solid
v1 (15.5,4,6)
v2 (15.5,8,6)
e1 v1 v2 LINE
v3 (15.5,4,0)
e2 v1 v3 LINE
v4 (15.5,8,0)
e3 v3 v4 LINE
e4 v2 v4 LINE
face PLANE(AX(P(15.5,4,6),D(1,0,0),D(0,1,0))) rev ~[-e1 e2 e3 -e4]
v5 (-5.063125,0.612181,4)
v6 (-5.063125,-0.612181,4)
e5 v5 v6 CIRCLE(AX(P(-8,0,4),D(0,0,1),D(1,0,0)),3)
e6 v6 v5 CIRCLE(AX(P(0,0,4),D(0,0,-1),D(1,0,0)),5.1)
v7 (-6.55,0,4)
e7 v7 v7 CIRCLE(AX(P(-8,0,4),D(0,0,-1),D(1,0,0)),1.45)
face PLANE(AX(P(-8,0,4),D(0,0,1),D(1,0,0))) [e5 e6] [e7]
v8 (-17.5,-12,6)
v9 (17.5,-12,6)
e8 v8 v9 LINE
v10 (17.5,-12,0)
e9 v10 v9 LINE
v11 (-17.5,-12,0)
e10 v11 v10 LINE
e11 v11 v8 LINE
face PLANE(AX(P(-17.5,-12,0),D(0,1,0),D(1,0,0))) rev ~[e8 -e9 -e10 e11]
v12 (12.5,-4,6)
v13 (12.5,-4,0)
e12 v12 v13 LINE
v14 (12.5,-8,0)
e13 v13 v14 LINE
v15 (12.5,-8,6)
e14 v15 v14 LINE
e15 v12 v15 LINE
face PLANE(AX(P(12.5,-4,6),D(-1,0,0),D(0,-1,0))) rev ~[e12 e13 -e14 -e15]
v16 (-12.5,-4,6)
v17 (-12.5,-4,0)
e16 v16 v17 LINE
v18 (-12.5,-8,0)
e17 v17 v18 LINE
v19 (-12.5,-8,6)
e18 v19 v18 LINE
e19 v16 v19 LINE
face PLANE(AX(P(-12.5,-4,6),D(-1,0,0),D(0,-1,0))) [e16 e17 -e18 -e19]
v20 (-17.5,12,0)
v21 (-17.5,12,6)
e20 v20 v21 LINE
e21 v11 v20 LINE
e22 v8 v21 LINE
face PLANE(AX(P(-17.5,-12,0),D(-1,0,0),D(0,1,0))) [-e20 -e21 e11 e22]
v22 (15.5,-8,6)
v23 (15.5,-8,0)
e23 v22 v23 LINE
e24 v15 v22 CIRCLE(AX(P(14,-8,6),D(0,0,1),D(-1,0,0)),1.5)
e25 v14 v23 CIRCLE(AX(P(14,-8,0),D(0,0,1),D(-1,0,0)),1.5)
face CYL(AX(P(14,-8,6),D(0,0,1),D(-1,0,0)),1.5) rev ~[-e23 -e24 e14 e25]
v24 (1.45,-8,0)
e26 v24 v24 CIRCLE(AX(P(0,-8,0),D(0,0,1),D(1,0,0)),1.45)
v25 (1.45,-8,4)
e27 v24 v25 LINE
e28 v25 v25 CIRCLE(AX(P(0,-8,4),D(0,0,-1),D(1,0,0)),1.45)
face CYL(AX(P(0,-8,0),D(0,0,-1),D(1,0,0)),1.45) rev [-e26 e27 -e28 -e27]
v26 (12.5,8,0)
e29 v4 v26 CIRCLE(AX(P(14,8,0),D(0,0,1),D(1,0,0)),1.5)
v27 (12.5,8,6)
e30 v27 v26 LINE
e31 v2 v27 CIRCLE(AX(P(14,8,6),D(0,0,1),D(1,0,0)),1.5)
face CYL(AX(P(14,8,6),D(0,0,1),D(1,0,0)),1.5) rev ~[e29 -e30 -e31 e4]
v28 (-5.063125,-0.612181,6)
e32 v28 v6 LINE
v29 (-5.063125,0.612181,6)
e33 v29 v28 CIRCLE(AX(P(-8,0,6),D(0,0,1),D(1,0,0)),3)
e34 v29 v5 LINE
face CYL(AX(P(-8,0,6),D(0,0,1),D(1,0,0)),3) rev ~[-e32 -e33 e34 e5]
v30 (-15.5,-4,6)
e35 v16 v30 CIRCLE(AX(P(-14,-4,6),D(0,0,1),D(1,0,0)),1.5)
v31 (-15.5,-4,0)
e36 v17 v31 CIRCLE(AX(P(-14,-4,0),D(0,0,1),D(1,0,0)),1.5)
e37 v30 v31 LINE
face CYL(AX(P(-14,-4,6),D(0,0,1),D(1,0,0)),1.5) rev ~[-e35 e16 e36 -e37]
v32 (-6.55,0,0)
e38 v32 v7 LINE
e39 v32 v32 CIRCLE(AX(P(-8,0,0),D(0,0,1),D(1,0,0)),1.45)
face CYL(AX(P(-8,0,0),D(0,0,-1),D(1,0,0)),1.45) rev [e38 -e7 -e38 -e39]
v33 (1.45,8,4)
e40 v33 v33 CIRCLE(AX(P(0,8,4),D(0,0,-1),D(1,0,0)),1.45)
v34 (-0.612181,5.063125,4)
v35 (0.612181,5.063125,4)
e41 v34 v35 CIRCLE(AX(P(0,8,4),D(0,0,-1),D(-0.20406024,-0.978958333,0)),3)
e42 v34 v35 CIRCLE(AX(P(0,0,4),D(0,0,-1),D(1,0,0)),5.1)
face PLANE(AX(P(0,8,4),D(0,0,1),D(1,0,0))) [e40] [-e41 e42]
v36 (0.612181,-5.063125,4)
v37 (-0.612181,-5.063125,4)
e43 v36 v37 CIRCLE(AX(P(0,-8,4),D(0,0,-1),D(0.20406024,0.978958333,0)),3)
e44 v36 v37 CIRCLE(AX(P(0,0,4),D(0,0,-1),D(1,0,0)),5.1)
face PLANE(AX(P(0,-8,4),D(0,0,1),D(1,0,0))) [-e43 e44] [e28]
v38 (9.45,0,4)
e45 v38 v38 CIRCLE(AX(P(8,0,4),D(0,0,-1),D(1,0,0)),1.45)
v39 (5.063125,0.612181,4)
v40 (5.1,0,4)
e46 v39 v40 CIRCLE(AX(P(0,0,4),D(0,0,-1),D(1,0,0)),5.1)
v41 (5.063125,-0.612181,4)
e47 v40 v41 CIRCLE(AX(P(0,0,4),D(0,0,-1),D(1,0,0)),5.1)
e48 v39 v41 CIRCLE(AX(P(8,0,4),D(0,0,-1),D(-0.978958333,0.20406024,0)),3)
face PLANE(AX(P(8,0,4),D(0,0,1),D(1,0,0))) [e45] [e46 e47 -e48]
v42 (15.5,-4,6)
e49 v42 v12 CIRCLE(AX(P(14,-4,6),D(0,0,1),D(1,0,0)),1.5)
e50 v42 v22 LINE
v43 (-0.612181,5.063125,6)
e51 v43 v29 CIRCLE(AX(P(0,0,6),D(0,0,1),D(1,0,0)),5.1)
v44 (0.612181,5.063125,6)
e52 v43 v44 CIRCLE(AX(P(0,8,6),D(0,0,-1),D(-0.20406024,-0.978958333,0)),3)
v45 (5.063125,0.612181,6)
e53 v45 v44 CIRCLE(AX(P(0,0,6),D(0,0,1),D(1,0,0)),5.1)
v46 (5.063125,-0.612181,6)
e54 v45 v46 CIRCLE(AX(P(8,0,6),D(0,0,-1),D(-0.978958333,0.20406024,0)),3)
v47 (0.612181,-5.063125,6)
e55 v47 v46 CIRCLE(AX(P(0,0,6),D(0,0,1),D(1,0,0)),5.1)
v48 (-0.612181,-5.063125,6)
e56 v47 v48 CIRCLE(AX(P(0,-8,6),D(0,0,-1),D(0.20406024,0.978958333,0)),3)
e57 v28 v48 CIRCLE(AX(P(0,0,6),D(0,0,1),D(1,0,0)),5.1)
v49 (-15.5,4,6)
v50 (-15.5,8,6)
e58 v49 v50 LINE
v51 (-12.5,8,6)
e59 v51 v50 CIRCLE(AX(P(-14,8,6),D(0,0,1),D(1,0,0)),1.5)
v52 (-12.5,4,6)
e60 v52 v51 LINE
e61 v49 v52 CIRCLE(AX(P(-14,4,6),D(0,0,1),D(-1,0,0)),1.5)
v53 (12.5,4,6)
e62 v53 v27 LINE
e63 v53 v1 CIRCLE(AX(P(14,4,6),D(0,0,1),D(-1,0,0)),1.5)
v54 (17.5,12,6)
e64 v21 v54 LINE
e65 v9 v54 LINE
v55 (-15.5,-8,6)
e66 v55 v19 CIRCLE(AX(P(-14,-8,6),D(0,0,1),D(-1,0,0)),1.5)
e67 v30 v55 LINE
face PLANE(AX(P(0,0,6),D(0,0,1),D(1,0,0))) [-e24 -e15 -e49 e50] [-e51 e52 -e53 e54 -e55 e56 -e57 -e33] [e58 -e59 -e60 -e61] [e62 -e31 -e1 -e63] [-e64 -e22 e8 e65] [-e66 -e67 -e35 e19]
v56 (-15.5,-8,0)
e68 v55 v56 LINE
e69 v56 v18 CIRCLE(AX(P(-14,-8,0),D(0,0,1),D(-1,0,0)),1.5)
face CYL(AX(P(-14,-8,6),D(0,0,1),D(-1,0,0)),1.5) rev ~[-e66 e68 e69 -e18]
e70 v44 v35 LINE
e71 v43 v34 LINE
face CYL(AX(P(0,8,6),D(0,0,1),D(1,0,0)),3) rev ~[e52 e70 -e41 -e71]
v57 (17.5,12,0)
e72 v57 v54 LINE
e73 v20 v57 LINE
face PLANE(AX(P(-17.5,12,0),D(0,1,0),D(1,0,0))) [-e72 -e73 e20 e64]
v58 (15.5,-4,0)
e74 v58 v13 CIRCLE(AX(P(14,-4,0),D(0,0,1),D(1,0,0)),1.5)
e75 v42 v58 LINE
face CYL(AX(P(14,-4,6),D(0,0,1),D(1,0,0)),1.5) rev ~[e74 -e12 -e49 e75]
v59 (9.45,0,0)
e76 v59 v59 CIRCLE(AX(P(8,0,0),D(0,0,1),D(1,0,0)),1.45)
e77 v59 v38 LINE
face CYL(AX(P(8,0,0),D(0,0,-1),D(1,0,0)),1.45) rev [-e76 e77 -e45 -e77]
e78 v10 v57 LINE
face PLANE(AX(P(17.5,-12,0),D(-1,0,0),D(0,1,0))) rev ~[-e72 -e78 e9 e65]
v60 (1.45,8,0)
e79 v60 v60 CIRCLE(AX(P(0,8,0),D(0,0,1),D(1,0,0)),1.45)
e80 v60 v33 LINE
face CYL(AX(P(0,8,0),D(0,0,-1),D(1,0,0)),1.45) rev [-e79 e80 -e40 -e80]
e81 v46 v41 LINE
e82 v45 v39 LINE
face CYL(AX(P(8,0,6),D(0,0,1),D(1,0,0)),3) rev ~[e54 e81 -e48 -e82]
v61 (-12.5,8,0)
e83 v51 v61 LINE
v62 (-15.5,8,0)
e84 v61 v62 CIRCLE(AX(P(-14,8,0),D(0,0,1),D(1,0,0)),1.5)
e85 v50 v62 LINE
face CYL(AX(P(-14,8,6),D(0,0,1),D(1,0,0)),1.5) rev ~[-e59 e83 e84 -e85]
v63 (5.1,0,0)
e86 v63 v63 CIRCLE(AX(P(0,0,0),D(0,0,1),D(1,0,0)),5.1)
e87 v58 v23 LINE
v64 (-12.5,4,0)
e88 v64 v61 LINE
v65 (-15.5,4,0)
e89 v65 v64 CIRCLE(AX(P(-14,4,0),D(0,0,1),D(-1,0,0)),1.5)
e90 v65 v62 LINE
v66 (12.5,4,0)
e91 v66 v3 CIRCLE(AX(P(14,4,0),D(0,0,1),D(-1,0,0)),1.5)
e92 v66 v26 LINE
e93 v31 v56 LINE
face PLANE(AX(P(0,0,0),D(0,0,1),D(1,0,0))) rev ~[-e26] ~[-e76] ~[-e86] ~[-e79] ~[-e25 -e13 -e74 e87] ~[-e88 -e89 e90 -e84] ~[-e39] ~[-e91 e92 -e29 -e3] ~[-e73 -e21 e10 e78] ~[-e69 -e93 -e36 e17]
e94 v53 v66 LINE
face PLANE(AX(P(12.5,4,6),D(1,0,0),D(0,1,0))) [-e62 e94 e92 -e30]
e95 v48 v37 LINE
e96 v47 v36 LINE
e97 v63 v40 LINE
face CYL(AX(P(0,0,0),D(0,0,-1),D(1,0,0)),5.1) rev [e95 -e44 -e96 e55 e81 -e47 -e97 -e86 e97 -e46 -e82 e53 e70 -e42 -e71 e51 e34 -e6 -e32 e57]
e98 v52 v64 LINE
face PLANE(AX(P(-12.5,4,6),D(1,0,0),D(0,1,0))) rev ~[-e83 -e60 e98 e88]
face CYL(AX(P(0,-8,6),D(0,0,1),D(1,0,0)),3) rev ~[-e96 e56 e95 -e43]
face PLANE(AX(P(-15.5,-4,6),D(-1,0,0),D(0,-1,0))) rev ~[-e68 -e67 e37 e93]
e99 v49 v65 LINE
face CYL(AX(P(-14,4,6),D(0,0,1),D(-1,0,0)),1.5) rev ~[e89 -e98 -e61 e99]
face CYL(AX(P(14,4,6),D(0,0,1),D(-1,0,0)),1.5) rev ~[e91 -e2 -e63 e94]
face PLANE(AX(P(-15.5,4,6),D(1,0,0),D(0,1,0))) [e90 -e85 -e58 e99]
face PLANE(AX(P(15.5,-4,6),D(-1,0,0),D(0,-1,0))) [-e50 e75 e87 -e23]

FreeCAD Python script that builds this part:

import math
import FreeCAD as App
import Part
import Sketcher

V = App.Vector


def add_polygon(sketch, points):
    """Adds a closed chain of lines whose ends are joined by coincident constraints."""
    first, n = sketch.GeometryCount, len(points)
    for a, b in zip(points, points[1:] + points[:1]):
        sketch.addGeometry(Part.LineSegment(App.Vector(*a, 0), App.Vector(*b, 0)), False)
    for i in range(n):
        sketch.addConstraint(Sketcher.Constraint("Coincident", first + i, 2, first + (i + 1) % n, 1))

doc = App.newDocument("Part")
params = doc.addObject("Spreadsheet::Sheet", "Params")
for row, (alias, value) in enumerate([
    ("sketch1_diameter", "2.9 mm"),
    ("sketch1_diameter2", "10.2 mm"),
    ("sketch1_width", "35 mm"),
    ("sketch1_height", "24 mm"),
    ("pad1_length", "6 mm"),
    ("sketch2_diameter", "6 mm"),
    ("pocket1_length", "2 mm"),
    ("sketch3_radius", "1.5 mm"),
    ("sketch3_height", "4 mm"),
], start=1):
    params.set(f"A{row}", alias)
    params.set(f"B{row}", "=" + value)
    params.setAlias(f"B{row}", alias)

body = doc.addObject("PartDesign::Body", "Body")

sketch1 = body.newObject("Sketcher::SketchObject", "Sketch")
sketch1.AttachmentSupport = (doc.getObject("XY_Plane"), [""])
sketch1.MapMode = "FlatFace"
add_polygon(sketch1, [(-17.5, 12), (-17.5, -12), (17.5, -12), (17.5, 12)])
sketch1.addGeometry(Part.Circle(V(0, -8, 0), V(0, 0, 1), 1.4), False)
sketch1.addGeometry(Part.Circle(V(-8, 0, 0), V(0, 0, 1), 1.4), False)
sketch1.addGeometry(Part.Circle(V(0, 0, 0), V(0, 0, 1), 5.1), False)
sketch1.addGeometry(Part.Circle(V(8, 0, 0), V(0, 0, 1), 1.4), False)
sketch1.addGeometry(Part.Circle(V(0, 8, 0), V(0, 0, 1), 1.4), False)
sketch1.addConstraint([
    Sketcher.Constraint("Vertical", 0),
    Sketcher.Constraint("Horizontal", 1),
    Sketcher.Constraint("Vertical", 2),
    Sketcher.Constraint("Horizontal", 3),
    Sketcher.Constraint("Coincident", 6, 3, -1, 1),
    Sketcher.Constraint("Equal", 4, 5),
    Sketcher.Constraint("Equal", 5, 7),
    Sketcher.Constraint("Equal", 7, 8),
    Sketcher.Constraint("Symmetric", 5, 3, 7, 3, -1, 1),
    Sketcher.Constraint("Symmetric", 4, 3, 8, 3, -1, 1),
    Sketcher.Constraint("Symmetric", 0, 2, 2, 2, -1, 1),
    Sketcher.Constraint("PointOnObject", 4, 3, -2),
    Sketcher.Constraint("PointOnObject", 5, 3, -1),
    Sketcher.Constraint("Diameter", 4, 2.9),
    Sketcher.Constraint("Diameter", 6, 10.2),
    Sketcher.Constraint("DistanceX", 1, 1, 1, 2, 35.0),
    Sketcher.Constraint("DistanceY", 0, 2, 0, 1, 24.0),
    Sketcher.Constraint("DistanceY", 4, 3, -1, 1, 8.0),
    Sketcher.Constraint("DistanceX", 5, 3, -1, 1, 8.0),
])
sketch1.setExpression("Constraints[17]", "Params.sketch1_diameter")
sketch1.setExpression("Constraints[18]", "Params.sketch1_diameter2")
sketch1.setExpression("Constraints[19]", "Params.sketch1_width")
sketch1.setExpression("Constraints[20]", "Params.sketch1_height")
pad1 = body.newObject("PartDesign::Pad", "Pad")
pad1.Profile = sketch1
pad1.setExpression("Length", "Params.pad1_length")

sketch2 = body.newObject("Sketcher::SketchObject", "Sketch001")
sketch2.AttachmentSupport = (doc.getObject("XY_Plane"), [""])
sketch2.MapMode = "FlatFace"
sketch2.AttachmentOffset = App.Placement(V(0, 0, 6), App.Rotation())
sketch2.addGeometry([
    Part.Circle(V(-8, 0, 0), V(0, 0, 1), 3),
    Part.Circle(V(0, -8, 0), V(0, 0, 1), 3),
    Part.Circle(V(8, 0, 0), V(0, 0, 1), 3),
    Part.Circle(V(0, 8, 0), V(0, 0, 1), 3),
], False)
sketch2.addConstraint([
    Sketcher.Constraint("Equal", 0, 1),
    Sketcher.Constraint("Equal", 1, 2),
    Sketcher.Constraint("Equal", 2, 3),
    Sketcher.Constraint("Symmetric", 0, 3, 2, 3, -1, 1),
    Sketcher.Constraint("Symmetric", 1, 3, 3, 3, -1, 1),
    Sketcher.Constraint("PointOnObject", 0, 3, -1),
    Sketcher.Constraint("PointOnObject", 1, 3, -2),
    Sketcher.Constraint("Diameter", 0, 6.0),
    Sketcher.Constraint("DistanceX", 0, 3, -1, 1, 8.0),
    Sketcher.Constraint("DistanceY", 1, 3, -1, 1, 8.0),
])
sketch2.setExpression("Constraints[7]", "Params.sketch2_diameter")
pocket1 = body.newObject("PartDesign::Pocket", "Pocket")
pocket1.Profile = sketch2
pocket1.setExpression("Length", "Params.pocket1_length")

sketch3 = body.newObject("Sketcher::SketchObject", "Sketch002")
sketch3.AttachmentSupport = (doc.getObject("XY_Plane"), [""])
sketch3.MapMode = "FlatFace"
sketch3.AttachmentOffset = App.Placement(V(0, 0, 6), App.Rotation())
sketch3.addGeometry([
    Part.ArcOfCircle(Part.Circle(V(-14, 4, 0), V(0, 0, 1), 1.5), math.radians(180), math.radians(360)),
    Part.LineSegment(V(-12.5, 4, 0), V(-12.5, 8, 0)),
    Part.ArcOfCircle(Part.Circle(V(-14, 8, 0), V(0, 0, 1), 1.5), math.radians(0), math.radians(180)),
    Part.LineSegment(V(-15.5, 8, 0), V(-15.5, 4, 0)),
    Part.ArcOfCircle(Part.Circle(V(14, 4, 0), V(0, 0, 1), 1.5), math.radians(180), math.radians(360)),
    Part.LineSegment(V(15.5, 4, 0), V(15.5, 8, 0)),
    Part.ArcOfCircle(Part.Circle(V(14, 8, 0), V(0, 0, 1), 1.5), math.radians(0), math.radians(180)),
    Part.LineSegment(V(12.5, 8, 0), V(12.5, 4, 0)),
    Part.ArcOfCircle(Part.Circle(V(-14, -4, 0), V(0, 0, 1), 1.5), math.radians(0), math.radians(180)),
    Part.LineSegment(V(-15.5, -4, 0), V(-15.5, -8, 0)),
    Part.ArcOfCircle(Part.Circle(V(-14, -8, 0), V(0, 0, 1), 1.5), math.radians(180), math.radians(360)),
    Part.LineSegment(V(-12.5, -8, 0), V(-12.5, -4, 0)),
    Part.ArcOfCircle(Part.Circle(V(14, -4, 0), V(0, 0, 1), 1.5), math.radians(0), math.radians(180)),
    Part.LineSegment(V(12.5, -4, 0), V(12.5, -8, 0)),
    Part.ArcOfCircle(Part.Circle(V(14, -8, 0), V(0, 0, 1), 1.5), math.radians(180), math.radians(360)),
    Part.LineSegment(V(15.5, -8, 0), V(15.5, -4, 0)),
], False)
sketch3.addConstraint([
    Sketcher.Constraint("Tangent", 0, 2, 1, 1),
    Sketcher.Constraint("Tangent", 1, 2, 2, 1),
    Sketcher.Constraint("Tangent", 2, 2, 3, 1),
    Sketcher.Constraint("Tangent", 3, 2, 0, 1),
    Sketcher.Constraint("Tangent", 4, 2, 5, 1),
    Sketcher.Constraint("Tangent", 5, 2, 6, 1),
    Sketcher.Constraint("Tangent", 6, 2, 7, 1),
    Sketcher.Constraint("Tangent", 7, 2, 4, 1),
    Sketcher.Constraint("Tangent", 8, 2, 9, 1),
    Sketcher.Constraint("Tangent", 9, 2, 10, 1),
    Sketcher.Constraint("Tangent", 10, 2, 11, 1),
    Sketcher.Constraint("Tangent", 11, 2, 8, 1),
    Sketcher.Constraint("Tangent", 12, 2, 13, 1),
    Sketcher.Constraint("Tangent", 13, 2, 14, 1),
    Sketcher.Constraint("Tangent", 14, 2, 15, 1),
    Sketcher.Constraint("Tangent", 15, 2, 12, 1),
    Sketcher.Constraint("Vertical", 1),
    Sketcher.Constraint("Vertical", 3),
    Sketcher.Constraint("Vertical", 5),
    Sketcher.Constraint("Vertical", 7),
    Sketcher.Constraint("Vertical", 9),
    Sketcher.Constraint("Vertical", 11),
    Sketcher.Constraint("Vertical", 13),
    Sketcher.Constraint("Vertical", 15),
    Sketcher.Constraint("Equal", 2, 4),
    Sketcher.Constraint("Equal", 6, 8),
    Sketcher.Constraint("Equal", 10, 12),
    Sketcher.Constraint("Symmetric", 4, 3, 8, 3, -1, 1),
    Sketcher.Constraint("Symmetric", 0, 3, 12, 3, -1, 1),
    Sketcher.Constraint("Symmetric", 0, 3, 4, 3, -2),
    Sketcher.Constraint("Horizontal", 2, 3, 6, 3),
    Sketcher.Constraint("Horizontal", 10, 3, 14, 3),
    Sketcher.Constraint("Equal", 7, 9),
    Sketcher.Constraint("Radius", 0, 1.5),
    Sketcher.Constraint("DistanceY", 1, 1, 1, 2, 4.0),
    Sketcher.Constraint("DistanceX", 0, 3, -1, 1, 14.0),
    Sketcher.Constraint("DistanceY", -1, 1, 0, 3, 4.0),
])
sketch3.setExpression("Constraints[33]", "Params.sketch3_radius")
sketch3.setExpression("Constraints[34]", "Params.sketch3_height")
pocket2 = body.newObject("PartDesign::Pocket", "Pocket001")
pocket2.Profile = sketch3
pocket2.Type = "ThroughAll"

doc.recompute()
